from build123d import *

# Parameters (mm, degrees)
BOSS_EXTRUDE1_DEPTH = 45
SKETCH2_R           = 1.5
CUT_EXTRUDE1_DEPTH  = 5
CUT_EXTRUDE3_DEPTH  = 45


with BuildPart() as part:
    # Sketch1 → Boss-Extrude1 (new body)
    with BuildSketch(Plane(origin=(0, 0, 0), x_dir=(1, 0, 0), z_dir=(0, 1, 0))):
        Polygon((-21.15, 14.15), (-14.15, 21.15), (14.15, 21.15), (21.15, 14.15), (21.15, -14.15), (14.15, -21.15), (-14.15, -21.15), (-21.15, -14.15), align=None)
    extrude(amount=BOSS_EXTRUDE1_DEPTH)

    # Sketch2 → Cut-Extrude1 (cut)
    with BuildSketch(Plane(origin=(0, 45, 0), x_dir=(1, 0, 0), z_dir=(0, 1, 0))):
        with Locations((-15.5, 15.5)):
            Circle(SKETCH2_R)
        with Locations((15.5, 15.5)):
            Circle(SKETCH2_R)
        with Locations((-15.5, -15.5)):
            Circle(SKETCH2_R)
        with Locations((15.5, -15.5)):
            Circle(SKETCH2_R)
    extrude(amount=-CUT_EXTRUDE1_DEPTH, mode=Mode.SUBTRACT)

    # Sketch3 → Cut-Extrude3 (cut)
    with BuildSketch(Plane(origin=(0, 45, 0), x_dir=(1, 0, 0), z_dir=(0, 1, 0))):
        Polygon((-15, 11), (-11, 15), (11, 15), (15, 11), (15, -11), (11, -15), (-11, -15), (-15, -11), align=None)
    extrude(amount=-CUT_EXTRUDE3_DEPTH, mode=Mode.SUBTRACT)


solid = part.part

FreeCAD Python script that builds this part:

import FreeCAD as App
import Part
import Sketcher
from FreeCAD import Vector
Q = App.Units.Quantity


def add_polygon(sketch, points):
    """Adds a closed chain of lines whose ends are joined by coincident constraints."""
    first, n = sketch.GeometryCount, len(points)
    for a, b in zip(points, points[1:] + points[:1]):
        sketch.addGeometry(Part.LineSegment(App.Vector(*a, 0), App.Vector(*b, 0)), False)
    for i in range(n):
        sketch.addConstraint(Sketcher.Constraint("Coincident", first + i, 2, first + (i + 1) % n, 1))

doc = App.newDocument("Part")
body = doc.addObject("PartDesign::Body", "Body")

# Sketch on XZ plane
sketch1 = body.newObject("Sketcher::SketchObject", "Sketch")
sketch1.AttachmentSupport = (doc.getObject("XZ_Plane"), [""])
sketch1.MapMode = "FlatFace"
add_polygon(sketch1, [(-14.15, -21.15), (-21.15, -14.15), (-21.15, 14.15), (-14.15, 21.15), (14.15, 21.15), (21.15, 14.15), (21.15, -14.15), (14.15, -21.15)])  # lines 0-7
sketch1.addConstraint([
    Sketcher.Constraint("Vertical", 1),
    Sketcher.Constraint("Horizontal", 3),
    Sketcher.Constraint("Vertical", 5),
    Sketcher.Constraint("Horizontal", 7),
    Sketcher.Constraint("Symmetric", 0, 2, 4, 2, -1, 1),
    Sketcher.Constraint("Symmetric", 2, 2, 6, 2, -1, 1),
    Sketcher.Constraint("Perpendicular", 0, 2),
    Sketcher.Constraint("Perpendicular", 2, 4),
    Sketcher.Constraint("Perpendicular", 4, 6),
    Sketcher.Constraint("Horizontal", 1, 2, 4, 2),
    Sketcher.Constraint("Vertical", 3, 2, 6, 2),
    Sketcher.Constraint("Equal", 7, 1),
    Sketcher.Constraint("DistanceX", 3, 1, 3, 2, Q("28.3 mm")),
    Sketcher.Constraint("DistanceX", 1, 2, 2, 2, Q("7 mm")),
])
pad1 = body.newObject("PartDesign::Pad", "Pad")
pad1.Profile = sketch1
pad1.Length = 45
pad1.Reversed = True

# Sketch on XZ plane
sketch2 = body.newObject("Sketcher::SketchObject", "Sketch001")
sketch2.AttachmentSupport = (doc.getObject("XZ_Plane"), [""])
sketch2.MapMode = "FlatFace"
sketch2.AttachmentOffset = App.Placement(Vector(0, 0, -45), App.Rotation())
sketch2.addGeometry([
    Part.Circle(Vector(-15.5, -15.5, 0), Vector(0, 0, 1), 1.5),
    Part.Circle(Vector(15.5, -15.5, 0), Vector(0, 0, 1), 1.5),
    Part.Circle(Vector(-15.5, 15.5, 0), Vector(0, 0, 1), 1.5),
    Part.Circle(Vector(15.5, 15.5, 0), Vector(0, 0, 1), 1.5),
], False)
sketch2.addConstraint([
    Sketcher.Constraint("Equal", 0, 1),
    Sketcher.Constraint("Equal", 1, 2),
    Sketcher.Constraint("Equal", 2, 3),
    Sketcher.Constraint("Symmetric", 1, 3, 2, 3, -1, 1),
    Sketcher.Constraint("Symmetric", 0, 3, 3, 3, -1, 1),
    Sketcher.Constraint("Symmetric", 0, 3, 1, 3, -2),
    Sketcher.Constraint("Diameter", 0, Q("3 mm")),
    Sketcher.Constraint("DistanceX", 0, 3, 1, 3, Q("31 mm")),
    Sketcher.Constraint("DistanceY", 0, 3, 2, 3, Q("31 mm")),
])
pocket1 = body.newObject("PartDesign::Pocket", "Pocket")
pocket1.Profile = sketch2
pocket1.Length = 5
pocket1.Reversed = True

# Sketch on XZ plane
sketch3 = body.newObject("Sketcher::SketchObject", "Sketch002")
sketch3.AttachmentSupport = (doc.getObject("XZ_Plane"), [""])
sketch3.MapMode = "FlatFace"
sketch3.AttachmentOffset = App.Placement(Vector(0, 0, -45), App.Rotation())
add_polygon(sketch3, [(-11, -15), (-15, -11), (-15, 11), (-11, 15), (11, 15), (15, 11), (15, -11), (11, -15)])  # lines 0-7
sketch3.addConstraint([
    Sketcher.Constraint("Vertical", 1),
    Sketcher.Constraint("Horizontal", 3),
    Sketcher.Constraint("Vertical", 5),
    Sketcher.Constraint("Horizontal", 7),
    Sketcher.Constraint("Symmetric", 0, 2, 4, 2, -1, 1),
    Sketcher.Constraint("Symmetric", 2, 2, 6, 2, -1, 1),
    Sketcher.Constraint("Perpendicular", 0, 2),
    Sketcher.Constraint("Perpendicular", 2, 4),
    Sketcher.Constraint("Perpendicular", 4, 6),
    Sketcher.Constraint("Horizontal", 1, 2, 4, 2),
    Sketcher.Constraint("Vertical", 3, 2, 6, 2),
    Sketcher.Constraint("Equal", 7, 1),
    Sketcher.Constraint("DistanceX", 3, 1, 3, 2, Q("22 mm")),
    Sketcher.Constraint("DistanceX", 0, 2, -1, 1, Q("15 mm")),
])
pocket2 = body.newObject("PartDesign::Pocket", "Pocket001")
pocket2.Profile = sketch3
pocket2.Length = 45
pocket2.Reversed = True

doc.recompute()
